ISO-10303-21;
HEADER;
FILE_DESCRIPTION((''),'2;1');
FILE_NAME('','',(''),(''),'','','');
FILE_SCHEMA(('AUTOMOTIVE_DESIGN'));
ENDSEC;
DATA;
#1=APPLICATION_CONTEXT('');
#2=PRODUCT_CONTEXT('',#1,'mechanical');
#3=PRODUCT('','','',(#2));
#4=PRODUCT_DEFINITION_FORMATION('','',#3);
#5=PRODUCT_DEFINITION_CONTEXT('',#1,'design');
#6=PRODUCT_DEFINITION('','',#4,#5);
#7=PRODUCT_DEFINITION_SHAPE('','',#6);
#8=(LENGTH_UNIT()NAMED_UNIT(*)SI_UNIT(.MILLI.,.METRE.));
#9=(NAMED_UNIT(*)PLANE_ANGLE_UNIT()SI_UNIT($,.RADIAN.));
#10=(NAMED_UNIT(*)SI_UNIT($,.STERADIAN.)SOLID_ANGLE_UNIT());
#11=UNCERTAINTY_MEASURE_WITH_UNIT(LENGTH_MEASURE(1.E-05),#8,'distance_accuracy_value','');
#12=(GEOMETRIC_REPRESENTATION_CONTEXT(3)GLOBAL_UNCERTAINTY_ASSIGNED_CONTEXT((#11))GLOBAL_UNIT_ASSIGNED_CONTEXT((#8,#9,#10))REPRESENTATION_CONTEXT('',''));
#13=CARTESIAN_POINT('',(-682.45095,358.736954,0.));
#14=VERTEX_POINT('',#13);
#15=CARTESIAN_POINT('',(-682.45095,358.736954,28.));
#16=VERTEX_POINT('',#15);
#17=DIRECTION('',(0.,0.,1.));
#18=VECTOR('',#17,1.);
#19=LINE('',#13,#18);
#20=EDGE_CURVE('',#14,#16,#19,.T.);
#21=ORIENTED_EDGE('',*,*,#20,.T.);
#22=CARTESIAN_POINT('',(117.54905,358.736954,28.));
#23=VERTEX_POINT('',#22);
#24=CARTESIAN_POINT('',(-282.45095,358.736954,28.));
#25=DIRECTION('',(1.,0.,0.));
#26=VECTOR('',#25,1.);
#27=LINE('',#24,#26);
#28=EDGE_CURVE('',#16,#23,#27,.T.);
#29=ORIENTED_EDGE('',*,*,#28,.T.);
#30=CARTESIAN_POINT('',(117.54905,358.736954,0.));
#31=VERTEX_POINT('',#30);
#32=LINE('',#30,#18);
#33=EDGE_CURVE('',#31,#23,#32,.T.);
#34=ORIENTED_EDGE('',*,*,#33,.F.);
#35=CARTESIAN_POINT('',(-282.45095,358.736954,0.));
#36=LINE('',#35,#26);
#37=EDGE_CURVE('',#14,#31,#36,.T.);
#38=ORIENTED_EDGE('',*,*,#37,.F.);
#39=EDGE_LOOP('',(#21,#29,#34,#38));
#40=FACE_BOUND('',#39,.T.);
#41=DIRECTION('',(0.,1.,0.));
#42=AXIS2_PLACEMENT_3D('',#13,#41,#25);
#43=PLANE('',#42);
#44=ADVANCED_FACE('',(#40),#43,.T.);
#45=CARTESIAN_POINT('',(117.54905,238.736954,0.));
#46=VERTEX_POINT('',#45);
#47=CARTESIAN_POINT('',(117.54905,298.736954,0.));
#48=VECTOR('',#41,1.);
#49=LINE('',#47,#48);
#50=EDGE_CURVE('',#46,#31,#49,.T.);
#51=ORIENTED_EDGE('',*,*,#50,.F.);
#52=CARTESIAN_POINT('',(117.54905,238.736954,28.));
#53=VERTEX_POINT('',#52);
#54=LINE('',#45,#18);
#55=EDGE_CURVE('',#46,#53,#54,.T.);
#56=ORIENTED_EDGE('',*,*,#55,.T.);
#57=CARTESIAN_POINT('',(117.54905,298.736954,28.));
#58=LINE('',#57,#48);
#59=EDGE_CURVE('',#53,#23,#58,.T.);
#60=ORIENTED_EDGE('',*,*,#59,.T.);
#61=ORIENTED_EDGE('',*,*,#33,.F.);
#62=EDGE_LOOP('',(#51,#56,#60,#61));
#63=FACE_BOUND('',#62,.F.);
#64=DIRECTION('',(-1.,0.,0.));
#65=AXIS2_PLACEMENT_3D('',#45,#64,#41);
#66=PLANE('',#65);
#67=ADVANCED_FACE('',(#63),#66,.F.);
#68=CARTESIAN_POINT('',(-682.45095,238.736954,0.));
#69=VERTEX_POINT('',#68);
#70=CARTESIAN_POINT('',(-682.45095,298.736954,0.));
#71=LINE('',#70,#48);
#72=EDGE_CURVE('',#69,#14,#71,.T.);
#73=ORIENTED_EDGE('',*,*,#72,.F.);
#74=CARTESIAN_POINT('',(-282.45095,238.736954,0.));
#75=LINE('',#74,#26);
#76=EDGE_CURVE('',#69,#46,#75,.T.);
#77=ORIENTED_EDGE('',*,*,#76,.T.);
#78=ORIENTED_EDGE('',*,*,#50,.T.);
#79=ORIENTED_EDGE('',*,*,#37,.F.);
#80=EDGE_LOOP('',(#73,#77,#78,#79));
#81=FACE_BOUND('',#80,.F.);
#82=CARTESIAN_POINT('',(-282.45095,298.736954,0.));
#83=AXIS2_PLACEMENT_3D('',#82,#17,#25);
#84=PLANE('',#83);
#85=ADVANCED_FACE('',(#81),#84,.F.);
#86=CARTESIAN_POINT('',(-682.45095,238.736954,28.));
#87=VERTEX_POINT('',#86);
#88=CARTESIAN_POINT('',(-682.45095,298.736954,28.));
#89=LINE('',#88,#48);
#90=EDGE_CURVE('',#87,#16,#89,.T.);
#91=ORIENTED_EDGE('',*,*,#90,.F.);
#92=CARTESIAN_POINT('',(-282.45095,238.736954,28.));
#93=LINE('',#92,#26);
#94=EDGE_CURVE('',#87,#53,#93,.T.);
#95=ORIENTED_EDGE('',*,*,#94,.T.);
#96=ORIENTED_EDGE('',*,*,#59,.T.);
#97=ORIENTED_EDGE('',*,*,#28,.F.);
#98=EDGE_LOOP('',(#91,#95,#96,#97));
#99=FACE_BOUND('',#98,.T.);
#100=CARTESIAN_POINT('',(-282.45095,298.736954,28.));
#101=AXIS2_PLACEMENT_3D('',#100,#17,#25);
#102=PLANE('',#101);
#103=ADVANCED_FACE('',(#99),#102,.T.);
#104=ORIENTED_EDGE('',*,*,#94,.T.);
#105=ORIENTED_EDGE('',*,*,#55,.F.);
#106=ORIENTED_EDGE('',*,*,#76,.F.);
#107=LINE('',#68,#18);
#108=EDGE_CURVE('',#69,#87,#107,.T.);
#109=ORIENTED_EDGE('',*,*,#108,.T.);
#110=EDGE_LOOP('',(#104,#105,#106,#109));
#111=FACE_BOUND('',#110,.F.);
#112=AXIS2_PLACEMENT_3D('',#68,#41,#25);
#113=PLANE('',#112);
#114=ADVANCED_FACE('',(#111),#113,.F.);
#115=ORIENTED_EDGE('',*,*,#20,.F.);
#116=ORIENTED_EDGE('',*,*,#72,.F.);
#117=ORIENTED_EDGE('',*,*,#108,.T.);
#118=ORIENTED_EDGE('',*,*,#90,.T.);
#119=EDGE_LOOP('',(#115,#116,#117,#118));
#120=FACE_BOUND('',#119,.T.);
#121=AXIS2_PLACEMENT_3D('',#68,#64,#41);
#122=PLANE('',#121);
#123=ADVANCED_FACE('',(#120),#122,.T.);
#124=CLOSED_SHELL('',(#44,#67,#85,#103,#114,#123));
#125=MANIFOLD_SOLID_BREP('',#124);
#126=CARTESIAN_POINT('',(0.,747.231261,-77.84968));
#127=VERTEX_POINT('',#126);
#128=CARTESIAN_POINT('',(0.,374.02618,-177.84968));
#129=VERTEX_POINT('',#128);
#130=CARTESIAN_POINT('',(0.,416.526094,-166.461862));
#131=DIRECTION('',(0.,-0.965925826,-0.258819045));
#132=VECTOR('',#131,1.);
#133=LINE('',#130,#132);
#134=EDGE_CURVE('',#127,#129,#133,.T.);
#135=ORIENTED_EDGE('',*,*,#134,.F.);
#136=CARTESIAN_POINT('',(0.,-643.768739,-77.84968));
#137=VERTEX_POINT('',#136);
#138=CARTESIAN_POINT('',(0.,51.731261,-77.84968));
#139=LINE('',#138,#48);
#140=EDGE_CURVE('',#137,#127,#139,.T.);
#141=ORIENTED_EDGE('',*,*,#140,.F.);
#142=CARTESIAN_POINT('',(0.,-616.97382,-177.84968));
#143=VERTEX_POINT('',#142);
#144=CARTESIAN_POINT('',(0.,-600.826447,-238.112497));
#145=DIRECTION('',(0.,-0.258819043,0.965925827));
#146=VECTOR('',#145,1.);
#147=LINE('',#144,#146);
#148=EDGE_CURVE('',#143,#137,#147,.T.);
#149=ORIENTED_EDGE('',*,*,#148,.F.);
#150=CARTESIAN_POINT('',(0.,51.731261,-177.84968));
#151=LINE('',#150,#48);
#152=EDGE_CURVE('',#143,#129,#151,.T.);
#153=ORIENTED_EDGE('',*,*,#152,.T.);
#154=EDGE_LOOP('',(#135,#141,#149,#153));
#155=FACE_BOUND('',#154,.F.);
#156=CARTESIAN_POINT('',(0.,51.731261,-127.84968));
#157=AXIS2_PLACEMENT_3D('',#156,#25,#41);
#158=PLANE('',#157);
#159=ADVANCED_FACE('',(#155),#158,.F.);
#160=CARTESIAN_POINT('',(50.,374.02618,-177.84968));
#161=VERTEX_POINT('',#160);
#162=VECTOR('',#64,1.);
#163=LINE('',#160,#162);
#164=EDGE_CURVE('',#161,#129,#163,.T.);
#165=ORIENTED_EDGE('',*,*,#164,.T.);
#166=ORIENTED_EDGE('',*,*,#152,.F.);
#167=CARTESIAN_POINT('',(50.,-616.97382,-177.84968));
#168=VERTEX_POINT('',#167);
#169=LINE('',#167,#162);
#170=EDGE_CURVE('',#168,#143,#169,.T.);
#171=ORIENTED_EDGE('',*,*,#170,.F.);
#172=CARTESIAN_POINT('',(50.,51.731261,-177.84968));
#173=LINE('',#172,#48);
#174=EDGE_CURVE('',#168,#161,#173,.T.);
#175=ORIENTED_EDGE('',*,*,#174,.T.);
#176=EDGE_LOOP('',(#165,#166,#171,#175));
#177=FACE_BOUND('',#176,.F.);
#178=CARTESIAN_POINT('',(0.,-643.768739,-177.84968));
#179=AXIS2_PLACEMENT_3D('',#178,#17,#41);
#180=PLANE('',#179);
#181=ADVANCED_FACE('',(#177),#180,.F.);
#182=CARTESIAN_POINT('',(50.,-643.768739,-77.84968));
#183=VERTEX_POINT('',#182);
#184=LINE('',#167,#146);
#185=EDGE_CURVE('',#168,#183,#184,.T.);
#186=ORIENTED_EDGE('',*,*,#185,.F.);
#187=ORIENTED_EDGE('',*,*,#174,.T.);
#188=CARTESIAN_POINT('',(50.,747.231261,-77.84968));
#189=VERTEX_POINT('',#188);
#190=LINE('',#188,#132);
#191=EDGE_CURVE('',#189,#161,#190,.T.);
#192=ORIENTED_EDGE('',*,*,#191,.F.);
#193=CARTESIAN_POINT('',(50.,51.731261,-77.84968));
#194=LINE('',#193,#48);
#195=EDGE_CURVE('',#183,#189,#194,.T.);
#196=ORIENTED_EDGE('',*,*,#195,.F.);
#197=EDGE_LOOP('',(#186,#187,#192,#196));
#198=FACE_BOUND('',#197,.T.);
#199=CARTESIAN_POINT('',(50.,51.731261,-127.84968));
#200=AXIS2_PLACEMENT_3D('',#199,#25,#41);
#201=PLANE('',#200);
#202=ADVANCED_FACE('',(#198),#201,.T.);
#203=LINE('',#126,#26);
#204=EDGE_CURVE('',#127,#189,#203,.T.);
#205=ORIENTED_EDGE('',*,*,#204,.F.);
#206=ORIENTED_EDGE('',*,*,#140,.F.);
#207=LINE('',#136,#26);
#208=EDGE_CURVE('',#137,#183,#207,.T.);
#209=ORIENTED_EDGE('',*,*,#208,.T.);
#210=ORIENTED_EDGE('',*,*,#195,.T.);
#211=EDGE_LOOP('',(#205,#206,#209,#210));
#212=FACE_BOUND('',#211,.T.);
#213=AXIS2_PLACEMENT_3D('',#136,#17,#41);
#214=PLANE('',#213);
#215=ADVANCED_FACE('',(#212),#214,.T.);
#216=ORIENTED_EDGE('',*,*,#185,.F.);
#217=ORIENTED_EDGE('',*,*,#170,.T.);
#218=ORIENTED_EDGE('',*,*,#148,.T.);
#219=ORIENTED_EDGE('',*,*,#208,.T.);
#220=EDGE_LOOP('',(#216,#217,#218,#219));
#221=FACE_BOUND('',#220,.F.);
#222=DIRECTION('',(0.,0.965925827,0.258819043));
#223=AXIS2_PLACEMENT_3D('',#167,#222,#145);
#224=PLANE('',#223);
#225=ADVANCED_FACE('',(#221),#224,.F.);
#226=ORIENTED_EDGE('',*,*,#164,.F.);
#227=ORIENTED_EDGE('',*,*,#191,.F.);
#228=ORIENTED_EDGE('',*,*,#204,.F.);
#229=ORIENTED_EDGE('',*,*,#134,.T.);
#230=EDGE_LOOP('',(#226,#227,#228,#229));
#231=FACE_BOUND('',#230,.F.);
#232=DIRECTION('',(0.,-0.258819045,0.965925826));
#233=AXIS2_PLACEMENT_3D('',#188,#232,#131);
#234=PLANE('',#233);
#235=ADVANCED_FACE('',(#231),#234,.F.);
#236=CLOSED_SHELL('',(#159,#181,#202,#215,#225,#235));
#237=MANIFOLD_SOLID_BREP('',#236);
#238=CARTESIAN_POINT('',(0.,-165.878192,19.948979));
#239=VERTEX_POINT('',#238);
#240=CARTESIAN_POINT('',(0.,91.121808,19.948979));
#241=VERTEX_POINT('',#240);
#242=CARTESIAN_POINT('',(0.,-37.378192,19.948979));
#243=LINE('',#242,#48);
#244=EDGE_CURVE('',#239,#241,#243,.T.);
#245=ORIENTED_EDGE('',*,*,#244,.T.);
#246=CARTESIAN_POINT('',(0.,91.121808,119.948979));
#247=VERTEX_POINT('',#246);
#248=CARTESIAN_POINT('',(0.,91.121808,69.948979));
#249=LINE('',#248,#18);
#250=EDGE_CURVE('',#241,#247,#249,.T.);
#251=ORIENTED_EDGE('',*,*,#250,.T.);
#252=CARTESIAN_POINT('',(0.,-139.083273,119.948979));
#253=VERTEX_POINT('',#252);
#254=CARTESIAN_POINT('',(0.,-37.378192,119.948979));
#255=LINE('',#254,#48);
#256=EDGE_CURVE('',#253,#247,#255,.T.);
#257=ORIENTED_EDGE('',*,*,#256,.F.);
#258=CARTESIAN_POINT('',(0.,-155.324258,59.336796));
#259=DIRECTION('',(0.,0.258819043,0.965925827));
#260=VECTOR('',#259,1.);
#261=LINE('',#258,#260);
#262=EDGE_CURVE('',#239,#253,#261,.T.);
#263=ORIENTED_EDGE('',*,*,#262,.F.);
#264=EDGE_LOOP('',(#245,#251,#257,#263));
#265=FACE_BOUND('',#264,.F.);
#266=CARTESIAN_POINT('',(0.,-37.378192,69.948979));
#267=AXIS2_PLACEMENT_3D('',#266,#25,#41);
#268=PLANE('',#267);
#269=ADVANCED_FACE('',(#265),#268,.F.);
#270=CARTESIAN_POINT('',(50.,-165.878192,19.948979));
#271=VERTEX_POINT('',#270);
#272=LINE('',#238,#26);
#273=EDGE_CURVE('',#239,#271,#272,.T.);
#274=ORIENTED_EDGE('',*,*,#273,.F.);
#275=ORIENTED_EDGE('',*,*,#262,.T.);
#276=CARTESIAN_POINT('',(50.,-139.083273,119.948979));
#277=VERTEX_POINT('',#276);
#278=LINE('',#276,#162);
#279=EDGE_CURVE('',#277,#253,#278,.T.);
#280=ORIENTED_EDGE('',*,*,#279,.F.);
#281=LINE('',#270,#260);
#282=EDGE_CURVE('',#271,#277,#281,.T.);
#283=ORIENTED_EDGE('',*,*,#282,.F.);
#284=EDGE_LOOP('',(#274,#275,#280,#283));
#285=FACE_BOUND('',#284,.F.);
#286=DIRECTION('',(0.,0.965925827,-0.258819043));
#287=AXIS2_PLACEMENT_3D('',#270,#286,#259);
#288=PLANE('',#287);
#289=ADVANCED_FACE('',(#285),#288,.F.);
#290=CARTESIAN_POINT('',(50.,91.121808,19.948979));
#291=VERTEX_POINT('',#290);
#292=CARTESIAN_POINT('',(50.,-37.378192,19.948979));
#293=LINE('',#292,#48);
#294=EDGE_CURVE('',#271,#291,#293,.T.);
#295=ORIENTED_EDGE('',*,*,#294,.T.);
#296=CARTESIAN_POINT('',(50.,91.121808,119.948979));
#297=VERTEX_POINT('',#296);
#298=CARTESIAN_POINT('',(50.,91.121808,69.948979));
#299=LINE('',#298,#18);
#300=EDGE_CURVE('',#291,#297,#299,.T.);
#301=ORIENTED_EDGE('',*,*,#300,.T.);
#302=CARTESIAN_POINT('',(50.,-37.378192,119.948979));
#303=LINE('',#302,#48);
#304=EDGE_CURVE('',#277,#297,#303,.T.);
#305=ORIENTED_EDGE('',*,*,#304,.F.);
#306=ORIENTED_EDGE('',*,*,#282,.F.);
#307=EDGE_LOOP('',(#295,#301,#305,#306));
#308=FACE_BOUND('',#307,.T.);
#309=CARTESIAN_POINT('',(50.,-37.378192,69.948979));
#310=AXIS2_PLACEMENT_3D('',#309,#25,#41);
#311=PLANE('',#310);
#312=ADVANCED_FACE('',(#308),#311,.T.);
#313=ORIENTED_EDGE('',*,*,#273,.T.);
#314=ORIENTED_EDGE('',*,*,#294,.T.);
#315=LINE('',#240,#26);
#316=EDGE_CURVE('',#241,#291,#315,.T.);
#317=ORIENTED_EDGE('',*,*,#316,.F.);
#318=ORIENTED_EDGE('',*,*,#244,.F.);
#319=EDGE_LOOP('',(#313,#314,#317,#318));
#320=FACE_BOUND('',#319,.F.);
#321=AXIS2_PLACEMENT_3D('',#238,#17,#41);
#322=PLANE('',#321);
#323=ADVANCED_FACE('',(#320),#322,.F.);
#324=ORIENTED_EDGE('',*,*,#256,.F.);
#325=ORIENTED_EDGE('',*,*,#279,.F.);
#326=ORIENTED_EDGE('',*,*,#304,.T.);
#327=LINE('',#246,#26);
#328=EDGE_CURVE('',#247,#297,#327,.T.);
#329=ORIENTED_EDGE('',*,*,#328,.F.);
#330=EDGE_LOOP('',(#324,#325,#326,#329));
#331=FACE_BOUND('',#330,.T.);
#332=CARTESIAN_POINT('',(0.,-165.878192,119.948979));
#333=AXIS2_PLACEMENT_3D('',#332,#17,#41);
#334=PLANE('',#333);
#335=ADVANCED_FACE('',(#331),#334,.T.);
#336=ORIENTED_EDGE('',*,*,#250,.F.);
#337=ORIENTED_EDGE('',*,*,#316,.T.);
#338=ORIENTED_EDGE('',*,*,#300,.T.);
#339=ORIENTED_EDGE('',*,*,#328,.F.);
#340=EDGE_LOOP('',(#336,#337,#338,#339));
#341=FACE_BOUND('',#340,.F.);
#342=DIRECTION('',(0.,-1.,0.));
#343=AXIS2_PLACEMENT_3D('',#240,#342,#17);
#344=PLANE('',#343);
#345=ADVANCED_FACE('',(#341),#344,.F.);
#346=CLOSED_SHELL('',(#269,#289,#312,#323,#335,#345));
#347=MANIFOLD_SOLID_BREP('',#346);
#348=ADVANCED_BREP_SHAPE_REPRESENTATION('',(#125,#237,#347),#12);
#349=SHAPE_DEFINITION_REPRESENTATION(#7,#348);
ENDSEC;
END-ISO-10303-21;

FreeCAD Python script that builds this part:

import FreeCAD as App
import Part
import Sketcher
Q = App.Units.Quantity

doc = App.newDocument("Part")
body = doc.addObject("PartDesign::Body", "Body")

# Sketch on YZ plane
sketch1 = body.newObject("Sketcher::SketchObject", "Sketch")
sketch1.AttachmentSupport = (doc.getObject("YZ_Plane"), [""])
sketch1.MapMode = "FlatFace"
sketch1.addGeometry([
    Part.LineSegment(App.Vector(-643.768739, -77.84968, 0), App.Vector(-643.768739, -177.84968, 0)),
    Part.LineSegment(App.Vector(-643.768739, -177.84968, 0), App.Vector(747.231261, -177.84968, 0)),
    Part.LineSegment(App.Vector(747.231261, -177.84968, 0), App.Vector(747.231261, -77.84968, 0)),
    Part.LineSegment(App.Vector(747.231261, -77.84968, 0), App.Vector(-643.768739, -77.84968, 0)),
], False)
sketch1.addConstraint([
    Sketcher.Constraint("Coincident", 0, 2, 1, 1),
    Sketcher.Constraint("Coincident", 1, 2, 2, 1),
    Sketcher.Constraint("Coincident", 2, 2, 3, 1),
    Sketcher.Constraint("Coincident", 3, 2, 0, 1),
    Sketcher.Constraint("Vertical", 0),
    Sketcher.Constraint("Horizontal", 1),
    Sketcher.Constraint("Vertical", 2),
    Sketcher.Constraint("Horizontal", 3),
    Sketcher.Constraint("DistanceX", 1, 1, 1, 2, Q("1391 mm")),
    Sketcher.Constraint("DistanceY", 0, 2, 0, 1, Q("100 mm")),
    Sketcher.Constraint("DistanceX", 0, 2, -1, 1, Q("643.768739 mm")),
    Sketcher.Constraint("DistanceY", 0, 2, -1, 1, Q("177.84968 mm")),
])
pad1 = body.newObject("PartDesign::Pad", "Pad")
pad1.Profile = sketch1
pad1.Length = 50

# Sketch on YZ plane
sketch2 = body.newObject("Sketcher::SketchObject", "Sketch001")
sketch2.AttachmentSupport = (doc.getObject("YZ_Plane"), [""])
sketch2.MapMode = "FlatFace"
sketch2.AttachmentOffset = App.Placement(App.Vector(0, 0, 50), App.Rotation())
sketch2.addGeometry([
    Part.LineSegment(App.Vector(-616.97382, -177.84968, 0), App.Vector(-643.768739, -77.84968, 0)),
    Part.LineSegment(App.Vector(-643.768739, -77.84968, 0), App.Vector(-643.768739, -177.84968, 0)),
    Part.LineSegment(App.Vector(-643.768739, -177.84968, 0), App.Vector(-616.97382, -177.84968, 0)),
], False)
sketch2.addConstraint([
    Sketcher.Constraint("Coincident", 0, 2, 1, 1),
    Sketcher.Constraint("Coincident", 1, 2, 2, 1),
    Sketcher.Constraint("Coincident", 2, 2, 0, 1),
    Sketcher.Constraint("Vertical", 1),
    Sketcher.Constraint("Horizontal", 2),
    Sketcher.Constraint("DistanceY", 1, 2, 1, 1, Q("100 mm")),
    Sketcher.Constraint("Angle", 0, Q("105 deg")),
    Sketcher.Constraint("DistanceX", 0, 2, -1, 1, Q("643.768739 mm")),
    Sketcher.Constraint("DistanceY", 0, 2, -1, 1, Q("77.84968 mm")),
])
pocket1 = body.newObject("PartDesign::Pocket", "Pocket")
pocket1.Profile = sketch2
pocket1.Type = "ThroughAll"

# Sketch on YZ plane
sketch3 = body.newObject("Sketcher::SketchObject", "Sketch002")
sketch3.AttachmentSupport = (doc.getObject("YZ_Plane"), [""])
sketch3.MapMode = "FlatFace"
sketch3.AttachmentOffset = App.Placement(App.Vector(0, 0, 50), App.Rotation())
sketch3.addGeometry([
    Part.LineSegment(App.Vector(747.231261, -177.84968, 0), App.Vector(747.231261, -77.84968, 0)),
    Part.LineSegment(App.Vector(747.231261, -77.84968, 0), App.Vector(374.02618, -177.84968, 0)),
    Part.LineSegment(App.Vector(374.02618, -177.84968, 0), App.Vector(747.231261, -177.84968, 0)),
], False)
sketch3.addConstraint([
    Sketcher.Constraint("Coincident", 0, 2, 1, 1),
    Sketcher.Constraint("Coincident", 1, 2, 2, 1),
    Sketcher.Constraint("Coincident", 2, 2, 0, 1),
    Sketcher.Constraint("Vertical", 0),
    Sketcher.Constraint("Horizontal", 2),
    Sketcher.Constraint("DistanceY", 0, 1, 0, 2, Q("100 mm")),
    Sketcher.Constraint("Angle", 1, Q("-165 deg")),
    Sketcher.Constraint("DistanceX", -1, 1, 0, 2, Q("747.231261 mm")),
    Sketcher.Constraint("DistanceY", 0, 2, -1, 1, Q("77.84968 mm")),
])
pocket2 = body.newObject("PartDesign::Pocket", "Pocket001")
pocket2.Profile = sketch3
pocket2.Type = "ThroughAll"
body2 = doc.addObject("PartDesign::Body", "Body001")

# Sketch on YZ plane
sketch4 = body2.newObject("Sketcher::SketchObject", "Sketch003")
sketch4.AttachmentSupport = (doc.getObject("YZ_Plane001"), [""])
sketch4.MapMode = "FlatFace"
sketch4.addGeometry([
    Part.LineSegment(App.Vector(-165.878192, 119.948979, 0), App.Vector(-165.878192, 19.948979, 0)),
    Part.LineSegment(App.Vector(-165.878192, 19.948979, 0), App.Vector(91.121808, 19.948979, 0)),
    Part.LineSegment(App.Vector(91.121808, 19.948979, 0), App.Vector(91.121808, 119.948979, 0)),
    Part.LineSegment(App.Vector(91.121808, 119.948979, 0), App.Vector(-165.878192, 119.948979, 0)),
], False)
sketch4.addConstraint([
    Sketcher.Constraint("Coincident", 0, 2, 1, 1),
    Sketcher.Constraint("Coincident", 1, 2, 2, 1),
    Sketcher.Constraint("Coincident", 2, 2, 3, 1),
    Sketcher.Constraint("Coincident", 3, 2, 0, 1),
    Sketcher.Constraint("Vertical", 0),
    Sketcher.Constraint("Horizontal", 1),
    Sketcher.Constraint("Vertical", 2),
    Sketcher.Constraint("Horizontal", 3),
    Sketcher.Constraint("DistanceX", 1, 1, 1, 2, Q("257 mm")),
    Sketcher.Constraint("DistanceY", 0, 2, 0, 1, Q("100 mm")),
    Sketcher.Constraint("DistanceY", -1, 1, 0, 2, Q("19.948979 mm")),
    Sketcher.Constraint("DistanceX", -1, 1, 1, 2, Q("91.121808 mm")),
])
pad2 = body2.newObject("PartDesign::Pad", "Pad001")
pad2.Profile = sketch4
pad2.Length = 50

# Sketch on YZ plane
sketch5 = body2.newObject("Sketcher::SketchObject", "Sketch004")
sketch5.AttachmentSupport = (doc.getObject("YZ_Plane001"), [""])
sketch5.MapMode = "FlatFace"
sketch5.AttachmentOffset = App.Placement(App.Vector(0, 0, 50), App.Rotation())
sketch5.addGeometry([
    Part.LineSegment(App.Vector(-165.878192, 119.948979, 0), App.Vector(-165.878192, 19.948979, 0)),
    Part.LineSegment(App.Vector(-165.878192, 19.948979, 0), App.Vector(-139.083273, 119.948979, 0)),
    Part.LineSegment(App.Vector(-139.083273, 119.948979, 0), App.Vector(-165.878192, 119.948979, 0)),
], False)
sketch5.addConstraint([
    Sketcher.Constraint("Coincident", 0, 2, 1, 1),
    Sketcher.Constraint("Coincident", 1, 2, 2, 1),
    Sketcher.Constraint("Coincident", 2, 2, 0, 1),
    Sketcher.Constraint("Vertical", 0),
    Sketcher.Constraint("Horizontal", 2),
    Sketcher.Constraint("DistanceY", 0, 2, 0, 1, Q("100 mm")),
    Sketcher.Constraint("Angle", 1, Q("75 deg")),
    Sketcher.Constraint("DistanceY", -1, 1, 0, 2, Q("19.948979 mm")),
    Sketcher.Constraint("DistanceX", 0, 2, -1, 1, Q("165.878192 mm")),
])
pocket3 = body2.newObject("PartDesign::Pocket", "Pocket002")
pocket3.Profile = sketch5
pocket3.Type = "ThroughAll"
body3 = doc.addObject("PartDesign::Body", "Body002")

# Sketch on XY plane
sketch6 = body3.newObject("Sketcher::SketchObject", "Sketch005")
sketch6.AttachmentSupport = (doc.getObject("XY_Plane002"), [""])
sketch6.MapMode = "FlatFace"
sketch6.addGeometry([
    Part.LineSegment(App.Vector(-682.45095, 358.736954, 0), App.Vector(-682.45095, 238.736954, 0)),
    Part.LineSegment(App.Vector(-682.45095, 238.736954, 0), App.Vector(117.54905, 238.736954, 0)),
    Part.LineSegment(App.Vector(117.54905, 238.736954, 0), App.Vector(117.54905, 358.736954, 0)),
    Part.LineSegment(App.Vector(117.54905, 358.736954, 0), App.Vector(-682.45095, 358.736954, 0)),
], False)
sketch6.addConstraint([
    Sketcher.Constraint("Coincident", 0, 2, 1, 1),
    Sketcher.Constraint("Coincident", 1, 2, 2, 1),
    Sketcher.Constraint("Coincident", 2, 2, 3, 1),
    Sketcher.Constraint("Coincident", 3, 2, 0, 1),
    Sketcher.Constraint("Vertical", 0),
    Sketcher.Constraint("Horizontal", 1),
    Sketcher.Constraint("Vertical", 2),
    Sketcher.Constraint("Horizontal", 3),
    Sketcher.Constraint("DistanceX", 1, 1, 1, 2, Q("800 mm")),
    Sketcher.Constraint("DistanceY", 0, 2, 0, 1, Q("120 mm")),
    Sketcher.Constraint("DistanceX", 0, 2, -1, 1, Q("682.45095 mm")),
    Sketcher.Constraint("DistanceY", -1, 1, 0, 2, Q("238.736954 mm")),
])
pad3 = body3.newObject("PartDesign::Pad", "Pad002")
pad3.Profile = sketch6
pad3.Length = 28

doc.recompute()
